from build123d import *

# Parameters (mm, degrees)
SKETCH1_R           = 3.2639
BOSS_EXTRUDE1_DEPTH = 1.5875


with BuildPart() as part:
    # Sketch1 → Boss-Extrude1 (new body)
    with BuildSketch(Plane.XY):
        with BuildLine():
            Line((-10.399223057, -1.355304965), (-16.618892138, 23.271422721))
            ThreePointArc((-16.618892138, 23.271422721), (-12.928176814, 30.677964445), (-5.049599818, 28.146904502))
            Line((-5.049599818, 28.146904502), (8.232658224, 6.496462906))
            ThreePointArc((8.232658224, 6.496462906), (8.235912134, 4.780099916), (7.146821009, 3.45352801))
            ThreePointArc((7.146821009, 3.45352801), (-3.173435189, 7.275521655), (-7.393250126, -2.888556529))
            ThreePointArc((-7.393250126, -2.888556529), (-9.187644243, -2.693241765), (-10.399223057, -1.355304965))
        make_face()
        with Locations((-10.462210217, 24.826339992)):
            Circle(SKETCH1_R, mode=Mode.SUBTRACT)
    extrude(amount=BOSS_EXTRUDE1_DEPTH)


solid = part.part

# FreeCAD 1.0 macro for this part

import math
import FreeCAD as App
import Part
import Sketcher
from FreeCAD import Vector
Q = App.Units.Quantity

doc = App.newDocument("Part")
body = doc.addObject("PartDesign::Body", "Body")

sketch1 = body.newObject("Sketcher::SketchObject", "Sketch")
sketch1.AttachmentSupport = (doc.getObject("XY_Plane"), [""])
sketch1.MapMode = "FlatFace"
sketch1.addGeometry(Part.LineSegment(Vector(-16.618892, 23.271423, 0), Vector(-10.399223, -1.355305, 0)), False)
sketch1.addGeometry(Part.ArcOfCircle(Part.Circle(Vector(-8.033533, -0.430582, 0), Vector(0, 0, 1), 2.54), math.radians(-158.650006), math.radians(-75.39937)), False)
sketch1.addGeometry(Part.ArcOfCircle(Part.Circle(Vector(0, 0, 0), Vector(0, 0, 1), 7.9375), math.radians(25.79103), math.radians(201.34068)), False)
sketch1.addGeometry(Part.ArcOfCircle(Part.Circle(Vector(5.843657, 5.633749, 0), Vector(0, 0, 1), 2.54), math.radians(-59.13236), math.radians(19.855616)), False)
sketch1.addGeometry(Part.LineSegment(Vector(8.232658, 6.496463, 0), Vector(-5.0496, 28.146905, 0)), False)
sketch1.addGeometry(Part.ArcOfCircle(Part.Circle(Vector(-10.46221, 24.82634, 0), Vector(0, 0, 1), 6.35), math.radians(31.528562), math.radians(194.174084)), False)
sketch1.addGeometry(Part.Circle(Vector(-10.46221, 24.82634, 0), Vector(0, 0, 1), 3.2639), False)
sketch1.addConstraint(Sketcher.Constraint("Coincident", 0, 2, 1, 1))
sketch1.addConstraint(Sketcher.Constraint("Coincident", 1, 2, 2, 2))
sketch1.addConstraint(Sketcher.Constraint("Coincident", 2, 1, 3, 1))
sketch1.addConstraint(Sketcher.Constraint("Coincident", 3, 2, 4, 1))
sketch1.addConstraint(Sketcher.Constraint("Tangent", 4, 2, 5, 1))
sketch1.addConstraint(Sketcher.Constraint("Tangent", 5, 2, 0, 1))
sketch1.addConstraint(Sketcher.Constraint("Coincident", 2, 3, -1, 1))
sketch1.addConstraint(Sketcher.Constraint("Coincident", 6, 3, 5, 3))
sketch1.addConstraint(Sketcher.Constraint("Equal", 1, 3))
sketch1.addConstraint(Sketcher.Constraint("Equal", 0, 4))
sketch1.addConstraint(Sketcher.Constraint("Radius", 1, Q("0.1 in")))
sketch1.addConstraint(Sketcher.Constraint("Radius", 5, Q("0.25 in")))
sketch1.addConstraint(Sketcher.Constraint("Distance", 0, Q("1 in")))
sketch1.addConstraint(Sketcher.Constraint("Diameter", 6, Q("0.257 in")))
sketch1.addConstraint(Sketcher.Constraint("Radius", 2, Q("0.3125 in")))
sketch1.addConstraint(Sketcher.Constraint("DistanceX", 4, 2, -1, 1, 5.0496))
sketch1.addConstraint(Sketcher.Constraint("DistanceX", 3, 3, 3, 2, 2.389001))
sketch1.addConstraint(Sketcher.Constraint("DistanceY", -1, 1, 3, 3, 5.633749))
sketch1.addConstraint(Sketcher.Constraint("DistanceX", 5, 3, -1, 1, 10.46221))
sketch1.addConstraint(Sketcher.Constraint("DistanceX", 1, 2, -1, 1, 7.39325))
sketch1.addConstraint(Sketcher.Constraint("DistanceX", 1, 3, 3, 3, 13.877191))
pad1 = body.newObject("PartDesign::Pad", "Pad")
pad1.Profile = sketch1
pad1.Length = Q("0.0625 in")

doc.recompute()
